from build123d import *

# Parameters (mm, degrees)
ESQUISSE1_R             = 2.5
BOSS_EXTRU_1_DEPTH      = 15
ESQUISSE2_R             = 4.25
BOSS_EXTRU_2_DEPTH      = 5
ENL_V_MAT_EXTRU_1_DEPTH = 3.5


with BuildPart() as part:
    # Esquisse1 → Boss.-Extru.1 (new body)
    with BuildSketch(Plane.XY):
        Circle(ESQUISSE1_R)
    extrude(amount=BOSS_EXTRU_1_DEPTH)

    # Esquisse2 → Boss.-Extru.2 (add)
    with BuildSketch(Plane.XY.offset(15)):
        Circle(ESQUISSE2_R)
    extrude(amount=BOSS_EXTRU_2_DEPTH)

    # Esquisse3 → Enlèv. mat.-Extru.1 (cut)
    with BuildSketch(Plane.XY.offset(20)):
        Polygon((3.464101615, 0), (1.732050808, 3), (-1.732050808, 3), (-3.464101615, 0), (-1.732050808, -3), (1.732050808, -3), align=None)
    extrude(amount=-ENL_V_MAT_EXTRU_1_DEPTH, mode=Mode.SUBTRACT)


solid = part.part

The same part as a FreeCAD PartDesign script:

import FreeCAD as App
import Part
import Sketcher
from FreeCAD import Vector
Q = App.Units.Quantity


def add_polygon(sketch, points):
    """Adds a closed chain of lines whose ends are joined by coincident constraints."""
    first, n = sketch.GeometryCount, len(points)
    for a, b in zip(points, points[1:] + points[:1]):
        sketch.addGeometry(Part.LineSegment(App.Vector(*a, 0), App.Vector(*b, 0)), False)
    for i in range(n):
        sketch.addConstraint(Sketcher.Constraint("Coincident", first + i, 2, first + (i + 1) % n, 1))

doc = App.newDocument("Part")
body = doc.addObject("PartDesign::Body", "Body")

# Sketch on XY plane
sketch1 = doc.addObject("Sketcher::SketchObject", "Sketch")
body.addObject(sketch1)
sketch1.AttachmentSupport = (doc.XY_Plane, [""])
sketch1.MapMode = "FlatFace"
sketch1.addGeometry(Part.Circle(Vector(0, 0, 0), Vector(0, 0, 1), 2.5), False)
sketch1.addConstraint([
    Sketcher.Constraint("Coincident", 0, 3, -1, 1),
    Sketcher.Constraint("Diameter", 0, Q("5 mm")),
])
pad1 = doc.addObject("PartDesign::Pad", "Pad")
body.addObject(pad1)
pad1.Profile = sketch1
pad1.Length = 15

# Sketch on XY plane
sketch2 = doc.addObject("Sketcher::SketchObject", "Sketch001")
body.addObject(sketch2)
sketch2.AttachmentSupport = (doc.XY_Plane, [""])
sketch2.MapMode = "FlatFace"
sketch2.AttachmentOffset = App.Placement(Vector(0, 0, 15), App.Rotation())
sketch2.addGeometry(Part.Circle(Vector(0, 0, 0), Vector(0, 0, 1), 4.2), False)
sketch2.addConstraint([
    Sketcher.Constraint("Coincident", 0, 3, -1, 1),
    Sketcher.Constraint("Diameter", 0, Q("8.5 mm")),
])
pad2 = doc.addObject("PartDesign::Pad", "Pad001")
body.addObject(pad2)
pad2.Profile = sketch2
pad2.Length = 5

# Sketch on XY plane
sketch3 = doc.addObject("Sketcher::SketchObject", "Sketch002")
body.addObject(sketch3)
sketch3.AttachmentSupport = (doc.XY_Plane, [""])
sketch3.MapMode = "FlatFace"
sketch3.AttachmentOffset = App.Placement(Vector(0, 0, 20), App.Rotation())
add_polygon(sketch3, [(3.5, 0), (1.7, 3), (-1.7, 3), (-3.5, 0), (-1.7, -3), (1.7, -3)])  # lines 0-5
sketch3.addConstraint([
    Sketcher.Constraint("Horizontal", 1),
    Sketcher.Constraint("Horizontal", 4),
    Sketcher.Constraint("Symmetric", 0, 2, 3, 2, -1, 1),
    Sketcher.Constraint("Symmetric", 2, 2, 5, 2, -1, 1),
    Sketcher.Constraint("PointOnObject", 2, 2, -1),
    Sketcher.Constraint("Parallel", 2, 5),
    Sketcher.Constraint("Vertical", 1, 2, 3, 2),
    Sketcher.Constraint("Angle", 0, Q("120 deg")),
    Sketcher.Constraint("DistanceY", -1, 1, 0, 2, Q("3 mm")),
    Sketcher.Constraint("DistanceX", 1, 2, 1, 1, Q("3.464102 mm")),
])
pocket1 = doc.addObject("PartDesign::Pocket", "Pocket")
body.addObject(pocket1)
pocket1.Profile = sketch3
pocket1.Length = 3.5

doc.recompute()
